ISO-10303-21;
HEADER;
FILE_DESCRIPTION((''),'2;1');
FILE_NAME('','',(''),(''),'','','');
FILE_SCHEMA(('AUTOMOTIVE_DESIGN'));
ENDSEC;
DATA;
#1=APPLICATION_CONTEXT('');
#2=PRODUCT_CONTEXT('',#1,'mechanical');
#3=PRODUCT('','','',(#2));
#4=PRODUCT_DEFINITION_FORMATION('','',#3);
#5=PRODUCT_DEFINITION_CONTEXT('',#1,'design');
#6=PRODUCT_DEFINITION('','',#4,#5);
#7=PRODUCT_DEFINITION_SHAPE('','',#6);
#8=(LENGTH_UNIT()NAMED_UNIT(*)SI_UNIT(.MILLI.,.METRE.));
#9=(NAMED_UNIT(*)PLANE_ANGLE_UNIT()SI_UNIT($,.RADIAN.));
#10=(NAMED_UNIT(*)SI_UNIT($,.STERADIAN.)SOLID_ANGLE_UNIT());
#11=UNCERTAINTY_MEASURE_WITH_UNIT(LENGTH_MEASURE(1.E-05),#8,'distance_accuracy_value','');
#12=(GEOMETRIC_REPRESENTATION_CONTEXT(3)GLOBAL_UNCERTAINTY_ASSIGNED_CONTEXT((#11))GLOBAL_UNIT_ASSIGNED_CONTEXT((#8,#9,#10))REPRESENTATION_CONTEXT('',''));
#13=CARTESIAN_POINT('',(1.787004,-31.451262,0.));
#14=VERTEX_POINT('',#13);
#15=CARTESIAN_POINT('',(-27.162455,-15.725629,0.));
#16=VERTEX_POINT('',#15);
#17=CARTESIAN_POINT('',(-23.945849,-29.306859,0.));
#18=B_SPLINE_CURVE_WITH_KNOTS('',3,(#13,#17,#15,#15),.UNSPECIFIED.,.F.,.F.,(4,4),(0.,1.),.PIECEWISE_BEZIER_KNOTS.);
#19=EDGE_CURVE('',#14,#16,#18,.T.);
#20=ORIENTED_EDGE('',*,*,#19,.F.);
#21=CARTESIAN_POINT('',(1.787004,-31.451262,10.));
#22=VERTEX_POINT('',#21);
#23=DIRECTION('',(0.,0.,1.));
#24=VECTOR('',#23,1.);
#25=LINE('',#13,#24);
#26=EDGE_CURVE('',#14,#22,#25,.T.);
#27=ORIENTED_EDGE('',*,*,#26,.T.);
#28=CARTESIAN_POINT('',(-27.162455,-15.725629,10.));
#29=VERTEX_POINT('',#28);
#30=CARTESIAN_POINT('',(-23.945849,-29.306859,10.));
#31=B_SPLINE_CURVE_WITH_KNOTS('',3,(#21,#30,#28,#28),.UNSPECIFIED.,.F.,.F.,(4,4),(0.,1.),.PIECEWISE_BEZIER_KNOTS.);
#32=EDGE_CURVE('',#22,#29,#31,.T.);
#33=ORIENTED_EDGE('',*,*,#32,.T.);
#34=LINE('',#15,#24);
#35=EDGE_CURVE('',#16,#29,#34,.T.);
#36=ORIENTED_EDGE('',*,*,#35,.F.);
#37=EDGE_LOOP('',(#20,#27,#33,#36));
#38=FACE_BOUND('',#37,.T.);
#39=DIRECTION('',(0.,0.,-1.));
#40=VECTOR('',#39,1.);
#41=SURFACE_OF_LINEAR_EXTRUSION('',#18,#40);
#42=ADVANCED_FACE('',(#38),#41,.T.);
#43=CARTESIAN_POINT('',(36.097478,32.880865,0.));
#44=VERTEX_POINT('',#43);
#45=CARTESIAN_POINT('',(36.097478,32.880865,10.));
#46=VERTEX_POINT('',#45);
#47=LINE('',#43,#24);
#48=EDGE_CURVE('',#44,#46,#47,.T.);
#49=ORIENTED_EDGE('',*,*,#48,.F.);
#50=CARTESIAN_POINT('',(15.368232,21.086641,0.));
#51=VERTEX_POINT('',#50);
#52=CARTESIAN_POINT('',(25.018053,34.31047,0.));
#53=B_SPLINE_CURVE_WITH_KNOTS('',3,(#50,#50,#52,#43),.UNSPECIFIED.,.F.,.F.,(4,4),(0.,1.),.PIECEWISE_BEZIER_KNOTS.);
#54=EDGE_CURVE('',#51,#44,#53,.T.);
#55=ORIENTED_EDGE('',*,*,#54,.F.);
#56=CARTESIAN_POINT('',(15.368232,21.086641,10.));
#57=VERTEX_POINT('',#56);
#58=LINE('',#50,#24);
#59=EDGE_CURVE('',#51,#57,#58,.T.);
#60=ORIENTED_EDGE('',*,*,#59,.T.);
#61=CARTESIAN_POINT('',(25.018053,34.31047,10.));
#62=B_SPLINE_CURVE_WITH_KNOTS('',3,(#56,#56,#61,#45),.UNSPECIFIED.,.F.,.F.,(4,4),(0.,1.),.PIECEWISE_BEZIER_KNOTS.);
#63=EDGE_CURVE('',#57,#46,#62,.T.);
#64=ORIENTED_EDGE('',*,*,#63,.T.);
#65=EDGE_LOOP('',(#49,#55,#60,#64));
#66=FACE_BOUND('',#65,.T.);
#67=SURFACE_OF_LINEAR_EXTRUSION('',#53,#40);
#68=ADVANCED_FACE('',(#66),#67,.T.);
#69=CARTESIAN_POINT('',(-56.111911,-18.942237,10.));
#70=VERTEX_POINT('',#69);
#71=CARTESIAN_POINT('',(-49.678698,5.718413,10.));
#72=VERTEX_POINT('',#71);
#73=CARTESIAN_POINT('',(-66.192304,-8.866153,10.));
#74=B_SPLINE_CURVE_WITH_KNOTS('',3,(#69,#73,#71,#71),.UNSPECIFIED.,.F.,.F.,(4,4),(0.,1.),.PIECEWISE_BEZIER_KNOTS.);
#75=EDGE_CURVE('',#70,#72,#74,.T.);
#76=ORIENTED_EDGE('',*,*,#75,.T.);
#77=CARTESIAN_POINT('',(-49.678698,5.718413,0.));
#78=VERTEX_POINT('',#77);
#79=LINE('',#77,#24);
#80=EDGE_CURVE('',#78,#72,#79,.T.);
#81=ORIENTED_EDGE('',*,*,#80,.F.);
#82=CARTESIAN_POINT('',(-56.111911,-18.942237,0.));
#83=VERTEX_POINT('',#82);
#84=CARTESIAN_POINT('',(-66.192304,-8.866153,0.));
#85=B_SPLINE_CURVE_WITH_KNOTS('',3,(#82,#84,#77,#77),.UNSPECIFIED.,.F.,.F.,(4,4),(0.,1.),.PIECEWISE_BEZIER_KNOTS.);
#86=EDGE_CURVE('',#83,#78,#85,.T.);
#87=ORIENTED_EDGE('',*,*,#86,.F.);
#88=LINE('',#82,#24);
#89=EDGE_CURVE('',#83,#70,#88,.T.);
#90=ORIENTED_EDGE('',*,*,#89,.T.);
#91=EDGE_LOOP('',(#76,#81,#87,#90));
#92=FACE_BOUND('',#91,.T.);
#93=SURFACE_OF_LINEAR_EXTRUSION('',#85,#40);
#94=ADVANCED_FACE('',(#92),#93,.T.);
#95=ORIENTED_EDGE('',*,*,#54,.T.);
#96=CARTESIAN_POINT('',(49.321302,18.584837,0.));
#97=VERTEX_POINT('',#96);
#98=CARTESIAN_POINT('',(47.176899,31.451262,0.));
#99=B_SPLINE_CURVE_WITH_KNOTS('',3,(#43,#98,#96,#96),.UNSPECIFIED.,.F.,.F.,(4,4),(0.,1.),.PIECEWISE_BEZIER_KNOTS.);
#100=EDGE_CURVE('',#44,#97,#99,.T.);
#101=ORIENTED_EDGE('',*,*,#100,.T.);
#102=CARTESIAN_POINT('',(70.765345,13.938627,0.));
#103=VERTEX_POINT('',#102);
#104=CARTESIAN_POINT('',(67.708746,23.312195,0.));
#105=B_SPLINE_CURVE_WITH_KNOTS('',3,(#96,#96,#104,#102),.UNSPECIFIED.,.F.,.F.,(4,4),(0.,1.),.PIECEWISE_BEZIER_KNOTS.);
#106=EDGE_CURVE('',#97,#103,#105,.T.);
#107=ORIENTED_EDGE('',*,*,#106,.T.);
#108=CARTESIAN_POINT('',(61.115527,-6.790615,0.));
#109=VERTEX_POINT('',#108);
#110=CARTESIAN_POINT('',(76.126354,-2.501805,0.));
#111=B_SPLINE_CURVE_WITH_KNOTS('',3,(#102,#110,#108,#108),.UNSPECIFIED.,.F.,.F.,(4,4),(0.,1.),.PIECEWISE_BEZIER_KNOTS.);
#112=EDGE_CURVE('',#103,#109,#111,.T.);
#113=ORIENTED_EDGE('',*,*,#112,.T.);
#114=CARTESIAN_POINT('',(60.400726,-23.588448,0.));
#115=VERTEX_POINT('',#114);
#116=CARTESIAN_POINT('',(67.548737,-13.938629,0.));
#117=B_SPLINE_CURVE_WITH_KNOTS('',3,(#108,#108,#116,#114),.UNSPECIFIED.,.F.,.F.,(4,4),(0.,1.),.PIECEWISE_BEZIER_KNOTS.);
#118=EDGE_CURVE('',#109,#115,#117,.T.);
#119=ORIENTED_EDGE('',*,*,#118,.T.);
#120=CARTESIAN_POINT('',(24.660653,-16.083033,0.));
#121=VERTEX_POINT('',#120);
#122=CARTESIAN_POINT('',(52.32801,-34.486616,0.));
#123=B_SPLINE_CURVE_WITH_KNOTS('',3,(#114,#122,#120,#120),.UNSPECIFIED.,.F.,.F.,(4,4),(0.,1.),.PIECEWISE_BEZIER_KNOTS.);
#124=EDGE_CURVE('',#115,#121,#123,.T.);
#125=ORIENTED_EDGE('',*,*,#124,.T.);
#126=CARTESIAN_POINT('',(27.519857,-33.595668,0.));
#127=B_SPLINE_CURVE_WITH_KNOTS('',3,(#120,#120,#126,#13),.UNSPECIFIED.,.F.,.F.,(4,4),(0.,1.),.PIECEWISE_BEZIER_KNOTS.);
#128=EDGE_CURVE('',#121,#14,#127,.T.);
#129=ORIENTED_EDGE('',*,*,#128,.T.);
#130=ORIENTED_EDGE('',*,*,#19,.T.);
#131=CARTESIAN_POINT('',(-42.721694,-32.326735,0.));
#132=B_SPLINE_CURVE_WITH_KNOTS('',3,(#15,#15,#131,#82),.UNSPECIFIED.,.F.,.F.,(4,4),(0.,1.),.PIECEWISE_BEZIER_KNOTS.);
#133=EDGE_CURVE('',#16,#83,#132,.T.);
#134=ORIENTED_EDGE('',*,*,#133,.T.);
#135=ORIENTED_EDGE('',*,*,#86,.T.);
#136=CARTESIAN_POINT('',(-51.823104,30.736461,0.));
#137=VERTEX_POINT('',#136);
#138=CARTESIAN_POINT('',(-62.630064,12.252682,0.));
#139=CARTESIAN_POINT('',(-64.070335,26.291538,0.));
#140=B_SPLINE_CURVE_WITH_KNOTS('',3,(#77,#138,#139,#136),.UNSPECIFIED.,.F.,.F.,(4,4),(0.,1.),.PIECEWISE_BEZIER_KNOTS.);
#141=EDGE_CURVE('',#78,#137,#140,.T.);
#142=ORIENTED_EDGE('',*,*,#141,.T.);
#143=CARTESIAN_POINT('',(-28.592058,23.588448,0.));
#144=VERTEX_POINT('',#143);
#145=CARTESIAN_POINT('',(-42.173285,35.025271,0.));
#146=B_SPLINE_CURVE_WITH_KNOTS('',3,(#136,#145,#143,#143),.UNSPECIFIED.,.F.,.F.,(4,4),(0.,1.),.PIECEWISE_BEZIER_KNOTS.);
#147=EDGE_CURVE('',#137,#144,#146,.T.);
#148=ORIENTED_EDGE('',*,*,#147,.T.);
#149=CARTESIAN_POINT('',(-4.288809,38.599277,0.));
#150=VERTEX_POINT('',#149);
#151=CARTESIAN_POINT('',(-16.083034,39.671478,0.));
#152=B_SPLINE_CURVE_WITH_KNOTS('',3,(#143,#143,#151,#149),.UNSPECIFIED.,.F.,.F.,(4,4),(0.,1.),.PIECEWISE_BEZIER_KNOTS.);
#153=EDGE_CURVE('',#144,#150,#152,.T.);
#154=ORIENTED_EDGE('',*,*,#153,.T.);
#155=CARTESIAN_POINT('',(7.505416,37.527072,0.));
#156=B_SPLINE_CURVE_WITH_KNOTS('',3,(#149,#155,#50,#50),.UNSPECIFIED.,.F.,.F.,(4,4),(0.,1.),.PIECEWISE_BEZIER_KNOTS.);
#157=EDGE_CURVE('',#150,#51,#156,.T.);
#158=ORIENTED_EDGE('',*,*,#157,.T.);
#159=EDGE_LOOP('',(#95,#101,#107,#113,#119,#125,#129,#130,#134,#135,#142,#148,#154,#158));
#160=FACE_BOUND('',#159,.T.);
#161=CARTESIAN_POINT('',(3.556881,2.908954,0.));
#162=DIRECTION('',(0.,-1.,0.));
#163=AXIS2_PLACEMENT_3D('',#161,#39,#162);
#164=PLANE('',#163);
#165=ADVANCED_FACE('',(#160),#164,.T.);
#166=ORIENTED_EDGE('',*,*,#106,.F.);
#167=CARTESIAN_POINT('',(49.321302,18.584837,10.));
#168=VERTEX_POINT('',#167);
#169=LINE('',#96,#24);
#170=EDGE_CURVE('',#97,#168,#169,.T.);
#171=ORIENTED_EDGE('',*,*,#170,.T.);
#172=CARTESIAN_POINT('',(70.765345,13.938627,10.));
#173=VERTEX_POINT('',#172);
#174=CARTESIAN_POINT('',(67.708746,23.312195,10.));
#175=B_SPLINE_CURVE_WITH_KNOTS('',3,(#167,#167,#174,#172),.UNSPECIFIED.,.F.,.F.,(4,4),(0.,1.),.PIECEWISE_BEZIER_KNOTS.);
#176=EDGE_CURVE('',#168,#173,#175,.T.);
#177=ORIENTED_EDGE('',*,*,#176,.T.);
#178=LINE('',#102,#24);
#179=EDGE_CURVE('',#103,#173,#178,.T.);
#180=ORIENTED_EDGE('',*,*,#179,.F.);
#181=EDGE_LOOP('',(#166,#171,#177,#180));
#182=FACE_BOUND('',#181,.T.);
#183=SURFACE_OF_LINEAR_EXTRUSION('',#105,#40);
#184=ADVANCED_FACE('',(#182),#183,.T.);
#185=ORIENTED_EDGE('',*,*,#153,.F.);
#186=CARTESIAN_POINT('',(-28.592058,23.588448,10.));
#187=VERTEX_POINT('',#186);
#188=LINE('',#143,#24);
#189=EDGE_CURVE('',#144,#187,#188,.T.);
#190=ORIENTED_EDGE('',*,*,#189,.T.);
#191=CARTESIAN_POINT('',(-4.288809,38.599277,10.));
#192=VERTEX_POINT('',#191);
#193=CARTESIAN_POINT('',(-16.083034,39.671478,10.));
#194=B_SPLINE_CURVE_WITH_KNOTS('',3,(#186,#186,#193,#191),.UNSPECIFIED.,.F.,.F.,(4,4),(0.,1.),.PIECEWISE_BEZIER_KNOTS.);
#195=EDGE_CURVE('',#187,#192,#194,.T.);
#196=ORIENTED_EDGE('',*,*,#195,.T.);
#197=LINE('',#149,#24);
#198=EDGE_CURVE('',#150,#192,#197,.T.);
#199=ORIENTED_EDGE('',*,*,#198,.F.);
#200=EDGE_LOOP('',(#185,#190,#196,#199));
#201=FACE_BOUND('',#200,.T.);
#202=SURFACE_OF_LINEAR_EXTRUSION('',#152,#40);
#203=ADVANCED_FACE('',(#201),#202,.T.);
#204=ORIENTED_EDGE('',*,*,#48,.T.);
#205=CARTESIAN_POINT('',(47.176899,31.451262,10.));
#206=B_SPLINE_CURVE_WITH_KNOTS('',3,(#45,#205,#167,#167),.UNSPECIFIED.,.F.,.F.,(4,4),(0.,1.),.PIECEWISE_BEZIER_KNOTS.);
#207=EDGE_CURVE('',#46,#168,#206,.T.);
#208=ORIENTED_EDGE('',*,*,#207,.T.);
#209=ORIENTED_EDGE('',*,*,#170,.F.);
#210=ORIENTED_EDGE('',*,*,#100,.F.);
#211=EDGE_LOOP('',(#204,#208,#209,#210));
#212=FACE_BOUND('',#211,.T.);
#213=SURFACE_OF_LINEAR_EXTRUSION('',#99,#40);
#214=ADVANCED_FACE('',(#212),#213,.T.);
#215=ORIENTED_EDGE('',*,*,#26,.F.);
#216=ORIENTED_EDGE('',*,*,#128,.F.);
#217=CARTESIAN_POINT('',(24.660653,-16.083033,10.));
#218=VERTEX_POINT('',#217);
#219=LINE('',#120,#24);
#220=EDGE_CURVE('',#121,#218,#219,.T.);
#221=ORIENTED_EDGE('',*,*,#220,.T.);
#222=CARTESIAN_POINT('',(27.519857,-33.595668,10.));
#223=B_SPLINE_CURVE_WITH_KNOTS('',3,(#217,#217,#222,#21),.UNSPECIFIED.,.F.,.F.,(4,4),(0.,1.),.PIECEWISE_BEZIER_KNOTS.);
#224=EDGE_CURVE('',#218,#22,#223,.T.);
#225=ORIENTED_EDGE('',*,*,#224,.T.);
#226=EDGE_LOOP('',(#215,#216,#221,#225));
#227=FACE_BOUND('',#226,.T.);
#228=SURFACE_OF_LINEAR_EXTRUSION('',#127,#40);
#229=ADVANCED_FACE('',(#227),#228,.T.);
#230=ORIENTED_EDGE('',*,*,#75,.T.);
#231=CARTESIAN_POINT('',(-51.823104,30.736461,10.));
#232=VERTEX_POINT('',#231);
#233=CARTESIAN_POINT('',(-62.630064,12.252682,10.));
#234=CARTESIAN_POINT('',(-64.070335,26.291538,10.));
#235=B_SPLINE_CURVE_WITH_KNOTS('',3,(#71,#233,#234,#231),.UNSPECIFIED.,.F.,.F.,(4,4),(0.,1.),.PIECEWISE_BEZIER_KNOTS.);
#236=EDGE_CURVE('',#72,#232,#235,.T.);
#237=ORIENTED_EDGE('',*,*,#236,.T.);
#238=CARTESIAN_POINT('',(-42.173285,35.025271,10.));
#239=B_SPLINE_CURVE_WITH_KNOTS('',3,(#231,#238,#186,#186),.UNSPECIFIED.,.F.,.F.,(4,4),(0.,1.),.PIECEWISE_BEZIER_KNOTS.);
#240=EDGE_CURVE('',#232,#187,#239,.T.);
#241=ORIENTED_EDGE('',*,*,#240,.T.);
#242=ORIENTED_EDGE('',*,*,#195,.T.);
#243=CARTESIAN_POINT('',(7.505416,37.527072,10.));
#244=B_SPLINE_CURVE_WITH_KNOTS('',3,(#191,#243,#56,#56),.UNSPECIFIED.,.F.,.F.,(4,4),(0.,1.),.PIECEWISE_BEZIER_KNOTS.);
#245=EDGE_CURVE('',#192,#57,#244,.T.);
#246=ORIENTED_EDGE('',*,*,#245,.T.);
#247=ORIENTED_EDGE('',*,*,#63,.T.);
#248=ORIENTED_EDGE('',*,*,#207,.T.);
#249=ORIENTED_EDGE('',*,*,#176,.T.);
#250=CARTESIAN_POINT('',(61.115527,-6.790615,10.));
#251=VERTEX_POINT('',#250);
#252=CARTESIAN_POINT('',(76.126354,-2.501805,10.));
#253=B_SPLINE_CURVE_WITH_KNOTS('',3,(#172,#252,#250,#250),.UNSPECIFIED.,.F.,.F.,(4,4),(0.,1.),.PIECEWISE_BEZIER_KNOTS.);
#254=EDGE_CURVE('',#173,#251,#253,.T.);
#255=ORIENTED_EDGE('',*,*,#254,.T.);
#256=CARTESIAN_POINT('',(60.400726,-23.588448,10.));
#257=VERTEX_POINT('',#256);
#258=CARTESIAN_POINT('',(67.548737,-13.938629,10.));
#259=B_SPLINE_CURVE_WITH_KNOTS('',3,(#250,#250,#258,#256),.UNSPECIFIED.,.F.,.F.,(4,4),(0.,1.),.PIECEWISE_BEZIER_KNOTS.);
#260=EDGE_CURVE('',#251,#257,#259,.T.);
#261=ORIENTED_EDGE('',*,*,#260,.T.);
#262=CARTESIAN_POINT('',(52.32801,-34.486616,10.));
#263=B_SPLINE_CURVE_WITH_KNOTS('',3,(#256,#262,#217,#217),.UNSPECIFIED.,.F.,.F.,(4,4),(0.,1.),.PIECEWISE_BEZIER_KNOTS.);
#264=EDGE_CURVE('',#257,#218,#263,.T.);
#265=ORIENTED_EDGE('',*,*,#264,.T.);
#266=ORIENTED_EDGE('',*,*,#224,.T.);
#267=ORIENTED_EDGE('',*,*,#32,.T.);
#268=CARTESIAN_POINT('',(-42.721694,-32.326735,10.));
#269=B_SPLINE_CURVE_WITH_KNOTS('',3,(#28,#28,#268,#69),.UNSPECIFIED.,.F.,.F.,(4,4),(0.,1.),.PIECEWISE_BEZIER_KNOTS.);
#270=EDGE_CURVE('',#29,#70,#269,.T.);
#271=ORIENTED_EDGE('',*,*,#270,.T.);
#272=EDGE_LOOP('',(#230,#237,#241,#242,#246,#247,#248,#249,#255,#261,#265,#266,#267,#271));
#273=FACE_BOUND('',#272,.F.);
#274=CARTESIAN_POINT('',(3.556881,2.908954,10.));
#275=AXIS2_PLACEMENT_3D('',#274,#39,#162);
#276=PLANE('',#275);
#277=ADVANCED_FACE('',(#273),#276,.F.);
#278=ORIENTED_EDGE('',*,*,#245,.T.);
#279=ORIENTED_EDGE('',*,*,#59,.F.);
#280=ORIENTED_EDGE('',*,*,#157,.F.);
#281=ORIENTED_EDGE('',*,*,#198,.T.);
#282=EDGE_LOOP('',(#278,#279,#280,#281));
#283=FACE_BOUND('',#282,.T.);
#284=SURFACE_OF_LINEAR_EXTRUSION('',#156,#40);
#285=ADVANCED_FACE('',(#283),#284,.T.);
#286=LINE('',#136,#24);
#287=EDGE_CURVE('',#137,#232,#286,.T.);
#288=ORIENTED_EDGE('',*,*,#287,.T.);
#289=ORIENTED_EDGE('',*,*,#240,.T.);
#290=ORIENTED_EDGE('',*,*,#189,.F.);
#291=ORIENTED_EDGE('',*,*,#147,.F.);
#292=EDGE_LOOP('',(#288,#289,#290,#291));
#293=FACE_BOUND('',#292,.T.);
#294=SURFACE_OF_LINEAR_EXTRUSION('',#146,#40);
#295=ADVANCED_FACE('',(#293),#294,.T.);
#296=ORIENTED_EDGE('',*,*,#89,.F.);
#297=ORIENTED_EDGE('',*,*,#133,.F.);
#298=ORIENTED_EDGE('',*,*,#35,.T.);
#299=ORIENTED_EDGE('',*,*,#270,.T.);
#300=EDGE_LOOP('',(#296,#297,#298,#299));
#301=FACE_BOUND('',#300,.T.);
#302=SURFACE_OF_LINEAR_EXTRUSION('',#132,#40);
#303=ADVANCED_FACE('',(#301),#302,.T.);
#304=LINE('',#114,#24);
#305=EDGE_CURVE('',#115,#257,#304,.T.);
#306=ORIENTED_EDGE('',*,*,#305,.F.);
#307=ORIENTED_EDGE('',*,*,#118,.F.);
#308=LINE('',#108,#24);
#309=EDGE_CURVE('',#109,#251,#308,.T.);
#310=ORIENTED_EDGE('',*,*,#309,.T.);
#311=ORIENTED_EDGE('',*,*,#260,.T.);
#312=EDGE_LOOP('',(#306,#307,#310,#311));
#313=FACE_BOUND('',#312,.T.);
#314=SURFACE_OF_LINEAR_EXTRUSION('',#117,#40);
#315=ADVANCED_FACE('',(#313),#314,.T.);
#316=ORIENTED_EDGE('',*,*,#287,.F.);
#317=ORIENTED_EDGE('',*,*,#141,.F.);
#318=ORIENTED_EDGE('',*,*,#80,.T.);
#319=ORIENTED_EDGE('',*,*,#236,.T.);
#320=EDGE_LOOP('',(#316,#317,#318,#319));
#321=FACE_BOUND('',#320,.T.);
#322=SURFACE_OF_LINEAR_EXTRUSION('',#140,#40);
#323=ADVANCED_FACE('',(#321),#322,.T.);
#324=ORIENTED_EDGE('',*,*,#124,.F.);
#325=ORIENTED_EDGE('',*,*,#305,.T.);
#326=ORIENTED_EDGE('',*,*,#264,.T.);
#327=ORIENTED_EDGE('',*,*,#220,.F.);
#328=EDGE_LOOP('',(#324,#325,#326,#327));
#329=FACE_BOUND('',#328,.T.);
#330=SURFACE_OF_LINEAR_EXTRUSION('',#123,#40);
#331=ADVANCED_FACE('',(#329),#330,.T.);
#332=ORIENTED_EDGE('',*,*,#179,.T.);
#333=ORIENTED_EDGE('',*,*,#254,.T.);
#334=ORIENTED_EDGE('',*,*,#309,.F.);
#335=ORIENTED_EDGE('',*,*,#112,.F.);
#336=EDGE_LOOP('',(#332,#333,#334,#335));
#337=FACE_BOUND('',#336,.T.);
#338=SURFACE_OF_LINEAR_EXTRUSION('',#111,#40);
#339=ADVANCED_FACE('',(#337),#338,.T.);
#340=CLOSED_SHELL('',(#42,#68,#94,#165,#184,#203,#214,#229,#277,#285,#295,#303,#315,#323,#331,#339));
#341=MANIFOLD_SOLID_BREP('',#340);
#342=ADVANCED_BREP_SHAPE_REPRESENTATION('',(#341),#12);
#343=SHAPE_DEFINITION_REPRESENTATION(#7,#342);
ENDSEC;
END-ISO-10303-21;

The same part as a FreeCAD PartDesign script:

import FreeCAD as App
import Part
import Sketcher

doc = App.newDocument("Part")
body = doc.addObject("PartDesign::Body", "Body")

# Sketch on XY plane
sketch1 = doc.addObject("Sketcher::SketchObject", "Sketch")
body.addObject(sketch1)
sketch1.AttachmentSupport = (doc.XY_Plane, [""])
sketch1.MapMode = "FlatFace"
sketch1.addGeometry(Part.BSplineCurve([App.Vector(-51.823104, 30.736461, 0), App.Vector(-42.173285, 35.025271, 0), App.Vector(-28.592058, 23.588448, 0), App.Vector(-28.592058, 23.588448, 0)], [4, 4], [0, 1], False, 3, [1, 1, 1, 1], False), False)
sketch1.addGeometry(Part.BSplineCurve([App.Vector(-28.592058, 23.588448, 0), App.Vector(-28.592058, 23.588448, 0), App.Vector(-16.083034, 39.671478, 0), App.Vector(-4.288809, 38.599277, 0)], [4, 4], [0, 1], False, 3, [1, 1, 1, 1], False), False)
sketch1.addGeometry(Part.BSplineCurve([App.Vector(-4.288809, 38.599277, 0), App.Vector(7.505416, 37.527072, 0), App.Vector(15.368232, 21.086641, 0), App.Vector(15.368232, 21.086641, 0)], [4, 4], [0, 1], False, 3, [1, 1, 1, 1], False), False)
sketch1.addGeometry(Part.BSplineCurve([App.Vector(15.368232, 21.086641, 0), App.Vector(15.368232, 21.086641, 0), App.Vector(25.018053, 34.31047, 0), App.Vector(36.097478, 32.880865, 0)], [4, 4], [0, 1], False, 3, [1, 1, 1, 1], False), False)
sketch1.addGeometry(Part.BSplineCurve([App.Vector(36.097478, 32.880865, 0), App.Vector(47.176899, 31.451262, 0), App.Vector(49.321302, 18.584837, 0), App.Vector(49.321302, 18.584837, 0)], [4, 4], [0, 1], False, 3, [1, 1, 1, 1], False), False)
sketch1.addGeometry(Part.BSplineCurve([App.Vector(49.321302, 18.584837, 0), App.Vector(49.321302, 18.584837, 0), App.Vector(67.708746, 23.312195, 0), App.Vector(70.765345, 13.938627, 0)], [4, 4], [0, 1], False, 3, [1, 1, 1, 1], False), False)
sketch1.addGeometry(Part.BSplineCurve([App.Vector(70.765345, 13.938627, 0), App.Vector(76.126354, -2.501805, 0), App.Vector(61.115527, -6.790615, 0), App.Vector(61.115527, -6.790615, 0)], [4, 4], [0, 1], False, 3, [1, 1, 1, 1], False), False)
sketch1.addGeometry(Part.BSplineCurve([App.Vector(61.115527, -6.790615, 0), App.Vector(61.115527, -6.790615, 0), App.Vector(67.548737, -13.938629, 0), App.Vector(60.400726, -23.588448, 0)], [4, 4], [0, 1], False, 3, [1, 1, 1, 1], False), False)
sketch1.addGeometry(Part.BSplineCurve([App.Vector(60.400726, -23.588448, 0), App.Vector(52.32801, -34.486616, 0), App.Vector(24.660653, -16.083033, 0), App.Vector(24.660653, -16.083033, 0)], [4, 4], [0, 1], False, 3, [1, 1, 1, 1], False), False)
sketch1.addGeometry(Part.BSplineCurve([App.Vector(24.660653, -16.083033, 0), App.Vector(24.660653, -16.083033, 0), App.Vector(27.519857, -33.595668, 0), App.Vector(1.787004, -31.451262, 0)], [4, 4], [0, 1], False, 3, [1, 1, 1, 1], False), False)
sketch1.addGeometry(Part.BSplineCurve([App.Vector(1.787004, -31.451262, 0), App.Vector(-23.945849, -29.306859, 0), App.Vector(-27.162455, -15.725629, 0), App.Vector(-27.162455, -15.725629, 0)], [4, 4], [0, 1], False, 3, [1, 1, 1, 1], False), False)
sketch1.addGeometry(Part.BSplineCurve([App.Vector(-27.162455, -15.725629, 0), App.Vector(-27.162455, -15.725629, 0), App.Vector(-42.721694, -32.326735, 0), App.Vector(-56.111911, -18.942237, 0)], [4, 4], [0, 1], False, 3, [1, 1, 1, 1], False), False)
sketch1.addGeometry(Part.BSplineCurve([App.Vector(-56.111911, -18.942237, 0), App.Vector(-66.192304, -8.866153, 0), App.Vector(-49.678698, 5.718413, 0), App.Vector(-49.678698, 5.718413, 0)], [4, 4], [0, 1], False, 3, [1, 1, 1, 1], False), False)
sketch1.addGeometry(Part.BSplineCurve([App.Vector(-49.678698, 5.718413, 0), App.Vector(-62.630064, 12.252682, 0), App.Vector(-64.070335, 26.291538, 0), App.Vector(-51.823104, 30.736461, 0)], [4, 4], [0, 1], False, 3, [1, 1, 1, 1], False), False)
sketch1.addConstraint(Sketcher.Constraint("Block", 0))
sketch1.addConstraint(Sketcher.Constraint("Block", 1))
sketch1.addConstraint(Sketcher.Constraint("Block", 2))
sketch1.addConstraint(Sketcher.Constraint("Block", 3))
sketch1.addConstraint(Sketcher.Constraint("Block", 4))
sketch1.addConstraint(Sketcher.Constraint("Block", 5))
sketch1.addConstraint(Sketcher.Constraint("Block", 6))
sketch1.addConstraint(Sketcher.Constraint("Block", 7))
sketch1.addConstraint(Sketcher.Constraint("Block", 8))
sketch1.addConstraint(Sketcher.Constraint("Block", 9))
sketch1.addConstraint(Sketcher.Constraint("Block", 10))
sketch1.addConstraint(Sketcher.Constraint("Block", 11))
sketch1.addConstraint(Sketcher.Constraint("Block", 12))
sketch1.addConstraint(Sketcher.Constraint("Block", 13))
pad1 = doc.addObject("PartDesign::Pad", "Pad")
body.addObject(pad1)
pad1.Profile = sketch1
pad1.Length = 10

doc.recompute()
